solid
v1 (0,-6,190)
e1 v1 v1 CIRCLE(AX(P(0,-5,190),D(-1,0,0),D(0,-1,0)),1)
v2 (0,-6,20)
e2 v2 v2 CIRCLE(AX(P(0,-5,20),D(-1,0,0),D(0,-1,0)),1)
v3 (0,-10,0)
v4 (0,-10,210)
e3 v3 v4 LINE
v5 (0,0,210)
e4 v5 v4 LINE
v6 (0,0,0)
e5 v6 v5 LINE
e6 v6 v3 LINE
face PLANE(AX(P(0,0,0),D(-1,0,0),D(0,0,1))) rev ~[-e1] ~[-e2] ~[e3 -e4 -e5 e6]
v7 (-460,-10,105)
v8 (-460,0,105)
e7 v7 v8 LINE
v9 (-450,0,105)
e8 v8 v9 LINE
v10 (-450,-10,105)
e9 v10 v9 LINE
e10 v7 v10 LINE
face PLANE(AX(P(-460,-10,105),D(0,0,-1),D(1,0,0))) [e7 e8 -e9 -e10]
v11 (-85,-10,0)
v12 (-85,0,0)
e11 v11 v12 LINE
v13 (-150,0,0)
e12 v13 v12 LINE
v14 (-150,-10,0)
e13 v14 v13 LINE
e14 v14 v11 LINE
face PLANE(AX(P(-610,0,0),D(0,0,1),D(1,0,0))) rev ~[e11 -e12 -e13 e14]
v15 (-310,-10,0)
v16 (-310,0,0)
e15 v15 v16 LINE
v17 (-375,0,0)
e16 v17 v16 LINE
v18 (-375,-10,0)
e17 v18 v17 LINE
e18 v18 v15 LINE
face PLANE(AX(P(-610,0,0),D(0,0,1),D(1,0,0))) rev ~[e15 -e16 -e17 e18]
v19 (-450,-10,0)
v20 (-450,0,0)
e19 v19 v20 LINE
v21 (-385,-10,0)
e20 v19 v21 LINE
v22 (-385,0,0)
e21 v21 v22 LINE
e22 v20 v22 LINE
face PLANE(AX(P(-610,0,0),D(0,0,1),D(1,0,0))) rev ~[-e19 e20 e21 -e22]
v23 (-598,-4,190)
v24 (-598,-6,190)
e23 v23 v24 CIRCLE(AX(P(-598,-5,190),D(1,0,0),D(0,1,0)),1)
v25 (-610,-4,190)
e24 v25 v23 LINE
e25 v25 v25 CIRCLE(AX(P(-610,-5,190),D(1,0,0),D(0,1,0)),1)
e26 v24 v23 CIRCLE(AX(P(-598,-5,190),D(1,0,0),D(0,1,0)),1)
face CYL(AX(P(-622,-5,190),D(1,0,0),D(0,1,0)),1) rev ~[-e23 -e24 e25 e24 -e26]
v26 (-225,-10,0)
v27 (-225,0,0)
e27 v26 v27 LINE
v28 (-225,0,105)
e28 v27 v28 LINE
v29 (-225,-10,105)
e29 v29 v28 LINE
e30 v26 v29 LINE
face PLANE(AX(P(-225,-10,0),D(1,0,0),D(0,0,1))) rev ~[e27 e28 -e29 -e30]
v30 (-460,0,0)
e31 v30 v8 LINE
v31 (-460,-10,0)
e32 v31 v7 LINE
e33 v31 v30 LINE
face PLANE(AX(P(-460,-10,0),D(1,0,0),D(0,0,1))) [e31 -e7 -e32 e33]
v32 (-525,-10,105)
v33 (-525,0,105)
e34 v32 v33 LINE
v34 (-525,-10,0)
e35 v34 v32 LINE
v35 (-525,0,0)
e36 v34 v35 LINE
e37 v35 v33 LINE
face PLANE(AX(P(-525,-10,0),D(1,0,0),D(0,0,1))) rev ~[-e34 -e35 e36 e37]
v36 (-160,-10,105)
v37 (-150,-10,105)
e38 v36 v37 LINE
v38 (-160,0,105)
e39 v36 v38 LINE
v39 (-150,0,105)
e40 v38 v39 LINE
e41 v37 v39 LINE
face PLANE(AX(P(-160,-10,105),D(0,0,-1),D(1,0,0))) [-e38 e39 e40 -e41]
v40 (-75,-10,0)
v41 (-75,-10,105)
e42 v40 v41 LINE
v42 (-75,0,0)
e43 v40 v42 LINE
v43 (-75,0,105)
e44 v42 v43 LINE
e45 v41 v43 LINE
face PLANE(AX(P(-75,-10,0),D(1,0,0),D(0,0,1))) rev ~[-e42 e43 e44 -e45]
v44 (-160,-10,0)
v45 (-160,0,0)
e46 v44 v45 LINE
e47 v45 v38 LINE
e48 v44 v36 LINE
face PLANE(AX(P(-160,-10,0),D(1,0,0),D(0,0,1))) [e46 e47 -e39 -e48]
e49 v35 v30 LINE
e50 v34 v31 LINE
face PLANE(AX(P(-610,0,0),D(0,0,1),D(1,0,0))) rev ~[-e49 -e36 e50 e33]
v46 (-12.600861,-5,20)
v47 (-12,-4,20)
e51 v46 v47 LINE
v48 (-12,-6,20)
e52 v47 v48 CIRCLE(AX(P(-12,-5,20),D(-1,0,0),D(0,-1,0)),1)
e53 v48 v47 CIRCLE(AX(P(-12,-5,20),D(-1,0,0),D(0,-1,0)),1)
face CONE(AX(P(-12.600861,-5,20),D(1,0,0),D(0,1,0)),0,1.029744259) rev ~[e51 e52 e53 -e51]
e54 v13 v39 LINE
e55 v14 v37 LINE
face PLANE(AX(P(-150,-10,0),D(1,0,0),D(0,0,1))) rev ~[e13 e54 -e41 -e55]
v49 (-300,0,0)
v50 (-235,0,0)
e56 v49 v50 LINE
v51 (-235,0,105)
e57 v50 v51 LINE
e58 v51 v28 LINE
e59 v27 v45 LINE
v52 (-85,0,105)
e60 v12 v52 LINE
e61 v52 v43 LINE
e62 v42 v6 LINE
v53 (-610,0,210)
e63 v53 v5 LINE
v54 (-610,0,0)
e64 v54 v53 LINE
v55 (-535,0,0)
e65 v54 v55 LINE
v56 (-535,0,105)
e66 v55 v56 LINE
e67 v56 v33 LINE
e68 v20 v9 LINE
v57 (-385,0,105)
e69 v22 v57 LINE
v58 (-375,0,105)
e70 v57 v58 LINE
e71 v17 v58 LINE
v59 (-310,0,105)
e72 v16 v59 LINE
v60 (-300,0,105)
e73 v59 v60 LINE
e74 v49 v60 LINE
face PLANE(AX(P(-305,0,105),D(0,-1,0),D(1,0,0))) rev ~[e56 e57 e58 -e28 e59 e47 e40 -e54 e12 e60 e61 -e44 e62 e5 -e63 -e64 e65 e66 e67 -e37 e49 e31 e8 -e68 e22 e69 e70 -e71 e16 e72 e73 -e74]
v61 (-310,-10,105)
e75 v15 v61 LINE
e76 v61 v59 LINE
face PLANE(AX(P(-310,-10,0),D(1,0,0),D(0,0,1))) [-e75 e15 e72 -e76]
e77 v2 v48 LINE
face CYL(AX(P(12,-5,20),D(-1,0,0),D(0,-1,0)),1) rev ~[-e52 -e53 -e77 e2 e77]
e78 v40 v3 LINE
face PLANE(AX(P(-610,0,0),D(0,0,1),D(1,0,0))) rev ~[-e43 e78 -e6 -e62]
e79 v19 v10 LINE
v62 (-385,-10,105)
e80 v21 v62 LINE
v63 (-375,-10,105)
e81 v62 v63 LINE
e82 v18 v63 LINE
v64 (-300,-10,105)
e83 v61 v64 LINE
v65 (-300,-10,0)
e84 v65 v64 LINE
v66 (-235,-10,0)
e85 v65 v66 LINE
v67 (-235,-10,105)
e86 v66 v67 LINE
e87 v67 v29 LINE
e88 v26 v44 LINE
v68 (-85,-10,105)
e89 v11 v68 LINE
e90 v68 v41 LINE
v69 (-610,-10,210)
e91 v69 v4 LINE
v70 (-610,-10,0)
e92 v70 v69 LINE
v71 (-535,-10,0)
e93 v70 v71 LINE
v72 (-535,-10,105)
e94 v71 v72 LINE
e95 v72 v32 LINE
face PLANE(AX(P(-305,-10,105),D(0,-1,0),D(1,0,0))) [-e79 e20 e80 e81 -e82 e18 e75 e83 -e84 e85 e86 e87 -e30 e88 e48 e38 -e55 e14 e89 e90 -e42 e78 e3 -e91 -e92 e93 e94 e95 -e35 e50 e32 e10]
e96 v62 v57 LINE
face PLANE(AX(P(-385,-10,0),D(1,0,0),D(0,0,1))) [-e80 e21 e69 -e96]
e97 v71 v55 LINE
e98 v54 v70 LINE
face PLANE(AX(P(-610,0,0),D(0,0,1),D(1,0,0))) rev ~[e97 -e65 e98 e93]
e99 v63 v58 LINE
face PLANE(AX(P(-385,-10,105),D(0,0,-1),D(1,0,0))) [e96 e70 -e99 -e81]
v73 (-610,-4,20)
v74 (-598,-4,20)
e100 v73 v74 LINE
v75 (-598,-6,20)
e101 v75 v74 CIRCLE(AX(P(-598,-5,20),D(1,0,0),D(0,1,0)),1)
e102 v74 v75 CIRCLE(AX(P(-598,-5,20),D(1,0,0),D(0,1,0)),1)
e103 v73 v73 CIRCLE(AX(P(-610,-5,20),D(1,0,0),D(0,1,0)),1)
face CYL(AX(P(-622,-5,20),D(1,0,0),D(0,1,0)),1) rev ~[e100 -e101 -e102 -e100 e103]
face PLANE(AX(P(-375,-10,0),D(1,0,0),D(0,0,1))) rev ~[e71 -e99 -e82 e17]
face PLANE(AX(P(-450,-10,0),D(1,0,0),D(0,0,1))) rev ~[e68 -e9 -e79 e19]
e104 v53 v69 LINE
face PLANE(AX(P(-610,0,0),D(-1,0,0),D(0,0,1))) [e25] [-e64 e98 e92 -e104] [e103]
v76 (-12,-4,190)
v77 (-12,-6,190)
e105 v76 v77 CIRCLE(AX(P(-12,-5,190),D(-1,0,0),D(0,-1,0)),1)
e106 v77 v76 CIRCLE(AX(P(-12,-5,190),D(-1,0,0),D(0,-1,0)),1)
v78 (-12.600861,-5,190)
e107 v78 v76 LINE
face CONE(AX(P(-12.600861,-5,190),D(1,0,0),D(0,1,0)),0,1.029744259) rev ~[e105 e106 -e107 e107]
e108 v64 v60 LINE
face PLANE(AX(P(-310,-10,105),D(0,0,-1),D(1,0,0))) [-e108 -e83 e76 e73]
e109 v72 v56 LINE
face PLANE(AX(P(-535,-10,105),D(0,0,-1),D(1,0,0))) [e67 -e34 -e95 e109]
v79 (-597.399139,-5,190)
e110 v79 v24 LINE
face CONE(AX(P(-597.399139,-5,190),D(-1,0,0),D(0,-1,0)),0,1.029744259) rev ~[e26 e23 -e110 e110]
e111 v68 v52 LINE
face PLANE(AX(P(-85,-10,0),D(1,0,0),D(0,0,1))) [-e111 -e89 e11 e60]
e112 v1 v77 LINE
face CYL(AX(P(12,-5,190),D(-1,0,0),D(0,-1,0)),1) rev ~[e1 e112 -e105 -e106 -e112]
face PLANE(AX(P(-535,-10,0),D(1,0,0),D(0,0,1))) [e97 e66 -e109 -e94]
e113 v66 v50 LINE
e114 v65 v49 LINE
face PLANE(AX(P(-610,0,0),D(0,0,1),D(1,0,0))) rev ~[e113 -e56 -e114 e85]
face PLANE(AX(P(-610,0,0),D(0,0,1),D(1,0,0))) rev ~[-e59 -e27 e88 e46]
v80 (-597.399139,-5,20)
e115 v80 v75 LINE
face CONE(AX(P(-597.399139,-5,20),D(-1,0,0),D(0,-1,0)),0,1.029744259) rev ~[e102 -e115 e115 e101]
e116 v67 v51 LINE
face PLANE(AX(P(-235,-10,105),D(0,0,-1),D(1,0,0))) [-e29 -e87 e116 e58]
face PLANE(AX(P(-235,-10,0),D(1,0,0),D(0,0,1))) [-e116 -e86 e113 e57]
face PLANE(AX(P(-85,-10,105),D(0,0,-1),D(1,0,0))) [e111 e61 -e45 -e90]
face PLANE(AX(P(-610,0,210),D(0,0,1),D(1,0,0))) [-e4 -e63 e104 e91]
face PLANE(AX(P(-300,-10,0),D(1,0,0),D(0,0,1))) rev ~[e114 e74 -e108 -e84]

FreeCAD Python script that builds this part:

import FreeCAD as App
import Part
import Sketcher

doc = App.newDocument("Part")
body = doc.addObject("PartDesign::Body", "Body")

sketch1 = body.newObject("Sketcher::SketchObject", "Sketch")
sketch1.AttachmentSupport = (doc.getObject("XZ_Plane"), [""])
sketch1.MapMode = "FlatFace"
sketch1.addGeometry(Part.LineSegment(App.Vector(-610, 210, 0), App.Vector(-610, 0, 0)), False)
sketch1.addGeometry(Part.LineSegment(App.Vector(-610, 0, 0), App.Vector(0, 0, 0)), False)
sketch1.addGeometry(Part.LineSegment(App.Vector(0, 0, 0), App.Vector(0, 210, 0)), False)
sketch1.addGeometry(Part.LineSegment(App.Vector(0, 210, 0), App.Vector(-610, 210, 0)), False)
sketch1.addConstraint(Sketcher.Constraint("Coincident", 0, 2, 1, 1))
sketch1.addConstraint(Sketcher.Constraint("Coincident", 1, 2, 2, 1))
sketch1.addConstraint(Sketcher.Constraint("Coincident", 2, 2, 3, 1))
sketch1.addConstraint(Sketcher.Constraint("Coincident", 3, 2, 0, 1))
sketch1.addConstraint(Sketcher.Constraint("Vertical", 0))
sketch1.addConstraint(Sketcher.Constraint("Horizontal", 1))
sketch1.addConstraint(Sketcher.Constraint("Vertical", 2))
sketch1.addConstraint(Sketcher.Constraint("Horizontal", 3))
sketch1.addConstraint(Sketcher.Constraint("Coincident", 1, 2, -1, 1))
sketch1.addConstraint(Sketcher.Constraint("DistanceX", 1, 1, 1, 2, 610.0))
sketch1.addConstraint(Sketcher.Constraint("DistanceY", 0, 2, 0, 1, 210.0))
pad1 = body.newObject("PartDesign::Pad", "Pad")
pad1.Profile = sketch1
pad1.Length = 10

sketch2 = body.newObject("Sketcher::SketchObject", "Sketch001")
sketch2.AttachmentSupport = (doc.getObject("XZ_Plane"), [""])
sketch2.MapMode = "FlatFace"
sketch2.AttachmentOffset = App.Placement(App.Vector(0, 0, 10), App.Rotation())
sketch2.addGeometry(Part.LineSegment(App.Vector(-535, 105, 0), App.Vector(-535, 0, 0)), False)
sketch2.addGeometry(Part.LineSegment(App.Vector(-535, 0, 0), App.Vector(-525, 0, 0)), False)
sketch2.addGeometry(Part.LineSegment(App.Vector(-525, 0, 0), App.Vector(-525, 105, 0)), False)
sketch2.addGeometry(Part.LineSegment(App.Vector(-525, 105, 0), App.Vector(-535, 105, 0)), False)
sketch2.addGeometry(Part.LineSegment(App.Vector(-460, 105, 0), App.Vector(-460, 0, 0)), False)
sketch2.addGeometry(Part.LineSegment(App.Vector(-460, 0, 0), App.Vector(-450, 0, 0)), False)
sketch2.addGeometry(Part.LineSegment(App.Vector(-450, 0, 0), App.Vector(-450, 105, 0)), False)
sketch2.addGeometry(Part.LineSegment(App.Vector(-450, 105, 0), App.Vector(-460, 105, 0)), False)
sketch2.addGeometry(Part.LineSegment(App.Vector(-385, 105, 0), App.Vector(-385, 0, 0)), False)
sketch2.addGeometry(Part.LineSegment(App.Vector(-385, 0, 0), App.Vector(-375, 0, 0)), False)
sketch2.addGeometry(Part.LineSegment(App.Vector(-375, 0, 0), App.Vector(-375, 105, 0)), False)
sketch2.addGeometry(Part.LineSegment(App.Vector(-375, 105, 0), App.Vector(-385, 105, 0)), False)
sketch2.addGeometry(Part.LineSegment(App.Vector(-235, 105, 0), App.Vector(-235, 0, 0)), False)
sketch2.addGeometry(Part.LineSegment(App.Vector(-235, 0, 0), App.Vector(-225, 0, 0)), False)
sketch2.addGeometry(Part.LineSegment(App.Vector(-225, 0, 0), App.Vector(-225, 105, 0)), False)
sketch2.addGeometry(Part.LineSegment(App.Vector(-225, 105, 0), App.Vector(-235, 105, 0)), False)
sketch2.addGeometry(Part.LineSegment(App.Vector(-160, 105, 0), App.Vector(-160, 0, 0)), False)
sketch2.addGeometry(Part.LineSegment(App.Vector(-160, 0, 0), App.Vector(-150, 0, 0)), False)
sketch2.addGeometry(Part.LineSegment(App.Vector(-150, 0, 0), App.Vector(-150, 105, 0)), False)
sketch2.addGeometry(Part.LineSegment(App.Vector(-150, 105, 0), App.Vector(-160, 105, 0)), False)
sketch2.addGeometry(Part.LineSegment(App.Vector(-310, 105, 0), App.Vector(-310, 0, 0)), False)
sketch2.addGeometry(Part.LineSegment(App.Vector(-310, 0, 0), App.Vector(-300, 0, 0)), False)
sketch2.addGeometry(Part.LineSegment(App.Vector(-300, 0, 0), App.Vector(-300, 105, 0)), False)
sketch2.addGeometry(Part.LineSegment(App.Vector(-300, 105, 0), App.Vector(-310, 105, 0)), False)
sketch2.addGeometry(Part.LineSegment(App.Vector(-85, 105, 0), App.Vector(-85, 0, 0)), False)
sketch2.addGeometry(Part.LineSegment(App.Vector(-85, 0, 0), App.Vector(-75, 0, 0)), False)
sketch2.addGeometry(Part.LineSegment(App.Vector(-75, 0, 0), App.Vector(-75, 105, 0)), False)
sketch2.addGeometry(Part.LineSegment(App.Vector(-75, 105, 0), App.Vector(-85, 105, 0)), False)
sketch2.addConstraint(Sketcher.Constraint("Coincident", 0, 2, 1, 1))
sketch2.addConstraint(Sketcher.Constraint("Coincident", 1, 2, 2, 1))
sketch2.addConstraint(Sketcher.Constraint("Coincident", 2, 2, 3, 1))
sketch2.addConstraint(Sketcher.Constraint("Coincident", 3, 2, 0, 1))
sketch2.addConstraint(Sketcher.Constraint("Coincident", 4, 2, 5, 1))
sketch2.addConstraint(Sketcher.Constraint("Coincident", 5, 2, 6, 1))
sketch2.addConstraint(Sketcher.Constraint("Coincident", 6, 2, 7, 1))
sketch2.addConstraint(Sketcher.Constraint("Coincident", 7, 2, 4, 1))
sketch2.addConstraint(Sketcher.Constraint("Coincident", 8, 2, 9, 1))
sketch2.addConstraint(Sketcher.Constraint("Coincident", 9, 2, 10, 1))
sketch2.addConstraint(Sketcher.Constraint("Coincident", 10, 2, 11, 1))
sketch2.addConstraint(Sketcher.Constraint("Coincident", 11, 2, 8, 1))
sketch2.addConstraint(Sketcher.Constraint("Coincident", 12, 2, 13, 1))
sketch2.addConstraint(Sketcher.Constraint("Coincident", 13, 2, 14, 1))
sketch2.addConstraint(Sketcher.Constraint("Coincident", 14, 2, 15, 1))
sketch2.addConstraint(Sketcher.Constraint("Coincident", 15, 2, 12, 1))
sketch2.addConstraint(Sketcher.Constraint("Coincident", 16, 2, 17, 1))
sketch2.addConstraint(Sketcher.Constraint("Coincident", 17, 2, 18, 1))
sketch2.addConstraint(Sketcher.Constraint("Coincident", 18, 2, 19, 1))
sketch2.addConstraint(Sketcher.Constraint("Coincident", 19, 2, 16, 1))
sketch2.addConstraint(Sketcher.Constraint("Coincident", 20, 2, 21, 1))
sketch2.addConstraint(Sketcher.Constraint("Coincident", 21, 2, 22, 1))
sketch2.addConstraint(Sketcher.Constraint("Coincident", 22, 2, 23, 1))
sketch2.addConstraint(Sketcher.Constraint("Coincident", 23, 2, 20, 1))
sketch2.addConstraint(Sketcher.Constraint("Coincident", 24, 2, 25, 1))
sketch2.addConstraint(Sketcher.Constraint("Coincident", 25, 2, 26, 1))
sketch2.addConstraint(Sketcher.Constraint("Coincident", 26, 2, 27, 1))
sketch2.addConstraint(Sketcher.Constraint("Coincident", 27, 2, 24, 1))
sketch2.addConstraint(Sketcher.Constraint("Vertical", 0))
sketch2.addConstraint(Sketcher.Constraint("Horizontal", 1))
sketch2.addConstraint(Sketcher.Constraint("Vertical", 2))
sketch2.addConstraint(Sketcher.Constraint("Horizontal", 3))
sketch2.addConstraint(Sketcher.Constraint("Vertical", 4))
sketch2.addConstraint(Sketcher.Constraint("Horizontal", 5))
sketch2.addConstraint(Sketcher.Constraint("Vertical", 6))
sketch2.addConstraint(Sketcher.Constraint("Horizontal", 7))
sketch2.addConstraint(Sketcher.Constraint("Vertical", 8))
sketch2.addConstraint(Sketcher.Constraint("Horizontal", 9))
sketch2.addConstraint(Sketcher.Constraint("Vertical", 10))
sketch2.addConstraint(Sketcher.Constraint("Horizontal", 11))
sketch2.addConstraint(Sketcher.Constraint("Vertical", 12))
sketch2.addConstraint(Sketcher.Constraint("Horizontal", 13))
sketch2.addConstraint(Sketcher.Constraint("Vertical", 14))
sketch2.addConstraint(Sketcher.Constraint("Horizontal", 15))
sketch2.addConstraint(Sketcher.Constraint("Vertical", 16))
sketch2.addConstraint(Sketcher.Constraint("Horizontal", 17))
sketch2.addConstraint(Sketcher.Constraint("Vertical", 18))
sketch2.addConstraint(Sketcher.Constraint("Horizontal", 19))
sketch2.addConstraint(Sketcher.Constraint("Vertical", 20))
sketch2.addConstraint(Sketcher.Constraint("Horizontal", 21))
sketch2.addConstraint(Sketcher.Constraint("Vertical", 22))
sketch2.addConstraint(Sketcher.Constraint("Horizontal", 23))
sketch2.addConstraint(Sketcher.Constraint("Vertical", 24))
sketch2.addConstraint(Sketcher.Constraint("Horizontal", 25))
sketch2.addConstraint(Sketcher.Constraint("Vertical", 26))
sketch2.addConstraint(Sketcher.Constraint("Horizontal", 27))
sketch2.addConstraint(Sketcher.Constraint("PointOnObject", 0, 2, -1))
sketch2.addConstraint(Sketcher.Constraint("PointOnObject", 4, 2, -1))
sketch2.addConstraint(Sketcher.Constraint("PointOnObject", 8, 2, -1))
sketch2.addConstraint(Sketcher.Constraint("PointOnObject", 12, 2, -1))
sketch2.addConstraint(Sketcher.Constraint("PointOnObject", 16, 2, -1))
sketch2.addConstraint(Sketcher.Constraint("PointOnObject", 20, 2, -1))
sketch2.addConstraint(Sketcher.Constraint("PointOnObject", 24, 2, -1))
sketch2.addConstraint(Sketcher.Constraint("Horizontal", 3, 2, 6, 2))
sketch2.addConstraint(Sketcher.Constraint("Horizontal", 7, 2, 10, 2))
sketch2.addConstraint(Sketcher.Constraint("Horizontal", 11, 2, 14, 2))
sketch2.addConstraint(Sketcher.Constraint("Horizontal", 15, 2, 18, 2))
sketch2.addConstraint(Sketcher.Constraint("Horizontal", 19, 2, 22, 2))
sketch2.addConstraint(Sketcher.Constraint("Horizontal", 23, 2, 26, 2))
sketch2.addConstraint(Sketcher.Constraint("Equal", 3, 5))
sketch2.addConstraint(Sketcher.Constraint("Equal", 7, 9))
sketch2.addConstraint(Sketcher.Constraint("Equal", 11, 13))
sketch2.addConstraint(Sketcher.Constraint("Equal", 15, 17))
sketch2.addConstraint(Sketcher.Constraint("Equal", 19, 21))
sketch2.addConstraint(Sketcher.Constraint("Equal", 23, 25))
sketch2.addConstraint(Sketcher.Constraint("DistanceX", 1, 1, 1, 2, 10.0))
sketch2.addConstraint(Sketcher.Constraint("DistanceY", 0, 2, 0, 1, 105.0))
sketch2.addConstraint(Sketcher.Constraint("DistanceX", 0, 2, -1, 1, 535.0))
sketch2.addConstraint(Sketcher.Constraint("DistanceX", 4, 2, -1, 1, 460.0))
sketch2.addConstraint(Sketcher.Constraint("DistanceX", 8, 2, -1, 1, 385.0))
sketch2.addConstraint(Sketcher.Constraint("DistanceX", 12, 2, -1, 1, 235.0))
sketch2.addConstraint(Sketcher.Constraint("DistanceX", 16, 2, -1, 1, 160.0))
sketch2.addConstraint(Sketcher.Constraint("DistanceX", 20, 2, -1, 1, 310.0))
sketch2.addConstraint(Sketcher.Constraint("DistanceX", 24, 2, -1, 1, 85.0))
pocket1 = body.newObject("PartDesign::Pocket", "Pocket")
pocket1.Profile = sketch2
pocket1.Length = 25

sketch3 = body.newObject("Sketcher::SketchObject", "Sketch002")
sketch3.AttachmentSupport = (doc.getObject("YZ_Plane"), [""])
sketch3.MapMode = "FlatFace"
sketch3.AttachmentOffset = App.Placement(App.Vector(0, 0, -610), App.Rotation())
sketch3.addGeometry(Part.Circle(App.Vector(-5, 190, 0), App.Vector(0, 0, 1), 1), False)
sketch3.addGeometry(Part.Circle(App.Vector(-5, 20, 0), App.Vector(0, 0, 1), 1), False)
sketch3.addConstraint(Sketcher.Constraint("Equal", 0, 1))
sketch3.addConstraint(Sketcher.Constraint("Vertical", 0, 3, 1, 3))
sketch3.addConstraint(Sketcher.Constraint("Diameter", 0, 2.0))
sketch3.addConstraint(Sketcher.Constraint("DistanceX", 0, 3, -1, 1, 5.0))
sketch3.addConstraint(Sketcher.Constraint("DistanceY", -1, 1, 0, 3, 190.0))
sketch3.addConstraint(Sketcher.Constraint("DistanceY", -1, 1, 1, 3, 20.0))
doc.recompute()
hole = body.newObject("PartDesign::Hole", "Hole")
hole.Profile = sketch3
hole.ThreadType = "None"
hole.Diameter = 2
hole.DepthType = "Dimension"
hole.Depth = 12
hole.DrillPoint = "Angled"
hole.DrillPointAngle = 118
hole.Reversed = True

sketch4 = body.newObject("Sketcher::SketchObject", "Sketch003")
sketch4.AttachmentSupport = (doc.getObject("YZ_Plane"), [""])
sketch4.MapMode = "FlatFace"
sketch4.addGeometry(Part.Circle(App.Vector(-5, 190, 0), App.Vector(0, 0, 1), 1), False)
sketch4.addGeometry(Part.Circle(App.Vector(-5, 20, 0), App.Vector(0, 0, 1), 1), False)
sketch4.addConstraint(Sketcher.Constraint("Equal", 0, 1))
sketch4.addConstraint(Sketcher.Constraint("Vertical", 0, 3, 1, 3))
sketch4.addConstraint(Sketcher.Constraint("Diameter", 0, 2.0))
sketch4.addConstraint(Sketcher.Constraint("DistanceX", 0, 3, -1, 1, 5.0))
sketch4.addConstraint(Sketcher.Constraint("DistanceY", -1, 1, 0, 3, 190.0))
sketch4.addConstraint(Sketcher.Constraint("DistanceY", -1, 1, 1, 3, 20.0))
doc.recompute()
hole2 = body.newObject("PartDesign::Hole", "Hole001")
hole2.Profile = sketch4
hole2.ThreadType = "None"
hole2.Diameter = 2
hole2.DepthType = "Dimension"
hole2.Depth = 12
hole2.DrillPoint = "Angled"
hole2.DrillPointAngle = 118

doc.recompute()
